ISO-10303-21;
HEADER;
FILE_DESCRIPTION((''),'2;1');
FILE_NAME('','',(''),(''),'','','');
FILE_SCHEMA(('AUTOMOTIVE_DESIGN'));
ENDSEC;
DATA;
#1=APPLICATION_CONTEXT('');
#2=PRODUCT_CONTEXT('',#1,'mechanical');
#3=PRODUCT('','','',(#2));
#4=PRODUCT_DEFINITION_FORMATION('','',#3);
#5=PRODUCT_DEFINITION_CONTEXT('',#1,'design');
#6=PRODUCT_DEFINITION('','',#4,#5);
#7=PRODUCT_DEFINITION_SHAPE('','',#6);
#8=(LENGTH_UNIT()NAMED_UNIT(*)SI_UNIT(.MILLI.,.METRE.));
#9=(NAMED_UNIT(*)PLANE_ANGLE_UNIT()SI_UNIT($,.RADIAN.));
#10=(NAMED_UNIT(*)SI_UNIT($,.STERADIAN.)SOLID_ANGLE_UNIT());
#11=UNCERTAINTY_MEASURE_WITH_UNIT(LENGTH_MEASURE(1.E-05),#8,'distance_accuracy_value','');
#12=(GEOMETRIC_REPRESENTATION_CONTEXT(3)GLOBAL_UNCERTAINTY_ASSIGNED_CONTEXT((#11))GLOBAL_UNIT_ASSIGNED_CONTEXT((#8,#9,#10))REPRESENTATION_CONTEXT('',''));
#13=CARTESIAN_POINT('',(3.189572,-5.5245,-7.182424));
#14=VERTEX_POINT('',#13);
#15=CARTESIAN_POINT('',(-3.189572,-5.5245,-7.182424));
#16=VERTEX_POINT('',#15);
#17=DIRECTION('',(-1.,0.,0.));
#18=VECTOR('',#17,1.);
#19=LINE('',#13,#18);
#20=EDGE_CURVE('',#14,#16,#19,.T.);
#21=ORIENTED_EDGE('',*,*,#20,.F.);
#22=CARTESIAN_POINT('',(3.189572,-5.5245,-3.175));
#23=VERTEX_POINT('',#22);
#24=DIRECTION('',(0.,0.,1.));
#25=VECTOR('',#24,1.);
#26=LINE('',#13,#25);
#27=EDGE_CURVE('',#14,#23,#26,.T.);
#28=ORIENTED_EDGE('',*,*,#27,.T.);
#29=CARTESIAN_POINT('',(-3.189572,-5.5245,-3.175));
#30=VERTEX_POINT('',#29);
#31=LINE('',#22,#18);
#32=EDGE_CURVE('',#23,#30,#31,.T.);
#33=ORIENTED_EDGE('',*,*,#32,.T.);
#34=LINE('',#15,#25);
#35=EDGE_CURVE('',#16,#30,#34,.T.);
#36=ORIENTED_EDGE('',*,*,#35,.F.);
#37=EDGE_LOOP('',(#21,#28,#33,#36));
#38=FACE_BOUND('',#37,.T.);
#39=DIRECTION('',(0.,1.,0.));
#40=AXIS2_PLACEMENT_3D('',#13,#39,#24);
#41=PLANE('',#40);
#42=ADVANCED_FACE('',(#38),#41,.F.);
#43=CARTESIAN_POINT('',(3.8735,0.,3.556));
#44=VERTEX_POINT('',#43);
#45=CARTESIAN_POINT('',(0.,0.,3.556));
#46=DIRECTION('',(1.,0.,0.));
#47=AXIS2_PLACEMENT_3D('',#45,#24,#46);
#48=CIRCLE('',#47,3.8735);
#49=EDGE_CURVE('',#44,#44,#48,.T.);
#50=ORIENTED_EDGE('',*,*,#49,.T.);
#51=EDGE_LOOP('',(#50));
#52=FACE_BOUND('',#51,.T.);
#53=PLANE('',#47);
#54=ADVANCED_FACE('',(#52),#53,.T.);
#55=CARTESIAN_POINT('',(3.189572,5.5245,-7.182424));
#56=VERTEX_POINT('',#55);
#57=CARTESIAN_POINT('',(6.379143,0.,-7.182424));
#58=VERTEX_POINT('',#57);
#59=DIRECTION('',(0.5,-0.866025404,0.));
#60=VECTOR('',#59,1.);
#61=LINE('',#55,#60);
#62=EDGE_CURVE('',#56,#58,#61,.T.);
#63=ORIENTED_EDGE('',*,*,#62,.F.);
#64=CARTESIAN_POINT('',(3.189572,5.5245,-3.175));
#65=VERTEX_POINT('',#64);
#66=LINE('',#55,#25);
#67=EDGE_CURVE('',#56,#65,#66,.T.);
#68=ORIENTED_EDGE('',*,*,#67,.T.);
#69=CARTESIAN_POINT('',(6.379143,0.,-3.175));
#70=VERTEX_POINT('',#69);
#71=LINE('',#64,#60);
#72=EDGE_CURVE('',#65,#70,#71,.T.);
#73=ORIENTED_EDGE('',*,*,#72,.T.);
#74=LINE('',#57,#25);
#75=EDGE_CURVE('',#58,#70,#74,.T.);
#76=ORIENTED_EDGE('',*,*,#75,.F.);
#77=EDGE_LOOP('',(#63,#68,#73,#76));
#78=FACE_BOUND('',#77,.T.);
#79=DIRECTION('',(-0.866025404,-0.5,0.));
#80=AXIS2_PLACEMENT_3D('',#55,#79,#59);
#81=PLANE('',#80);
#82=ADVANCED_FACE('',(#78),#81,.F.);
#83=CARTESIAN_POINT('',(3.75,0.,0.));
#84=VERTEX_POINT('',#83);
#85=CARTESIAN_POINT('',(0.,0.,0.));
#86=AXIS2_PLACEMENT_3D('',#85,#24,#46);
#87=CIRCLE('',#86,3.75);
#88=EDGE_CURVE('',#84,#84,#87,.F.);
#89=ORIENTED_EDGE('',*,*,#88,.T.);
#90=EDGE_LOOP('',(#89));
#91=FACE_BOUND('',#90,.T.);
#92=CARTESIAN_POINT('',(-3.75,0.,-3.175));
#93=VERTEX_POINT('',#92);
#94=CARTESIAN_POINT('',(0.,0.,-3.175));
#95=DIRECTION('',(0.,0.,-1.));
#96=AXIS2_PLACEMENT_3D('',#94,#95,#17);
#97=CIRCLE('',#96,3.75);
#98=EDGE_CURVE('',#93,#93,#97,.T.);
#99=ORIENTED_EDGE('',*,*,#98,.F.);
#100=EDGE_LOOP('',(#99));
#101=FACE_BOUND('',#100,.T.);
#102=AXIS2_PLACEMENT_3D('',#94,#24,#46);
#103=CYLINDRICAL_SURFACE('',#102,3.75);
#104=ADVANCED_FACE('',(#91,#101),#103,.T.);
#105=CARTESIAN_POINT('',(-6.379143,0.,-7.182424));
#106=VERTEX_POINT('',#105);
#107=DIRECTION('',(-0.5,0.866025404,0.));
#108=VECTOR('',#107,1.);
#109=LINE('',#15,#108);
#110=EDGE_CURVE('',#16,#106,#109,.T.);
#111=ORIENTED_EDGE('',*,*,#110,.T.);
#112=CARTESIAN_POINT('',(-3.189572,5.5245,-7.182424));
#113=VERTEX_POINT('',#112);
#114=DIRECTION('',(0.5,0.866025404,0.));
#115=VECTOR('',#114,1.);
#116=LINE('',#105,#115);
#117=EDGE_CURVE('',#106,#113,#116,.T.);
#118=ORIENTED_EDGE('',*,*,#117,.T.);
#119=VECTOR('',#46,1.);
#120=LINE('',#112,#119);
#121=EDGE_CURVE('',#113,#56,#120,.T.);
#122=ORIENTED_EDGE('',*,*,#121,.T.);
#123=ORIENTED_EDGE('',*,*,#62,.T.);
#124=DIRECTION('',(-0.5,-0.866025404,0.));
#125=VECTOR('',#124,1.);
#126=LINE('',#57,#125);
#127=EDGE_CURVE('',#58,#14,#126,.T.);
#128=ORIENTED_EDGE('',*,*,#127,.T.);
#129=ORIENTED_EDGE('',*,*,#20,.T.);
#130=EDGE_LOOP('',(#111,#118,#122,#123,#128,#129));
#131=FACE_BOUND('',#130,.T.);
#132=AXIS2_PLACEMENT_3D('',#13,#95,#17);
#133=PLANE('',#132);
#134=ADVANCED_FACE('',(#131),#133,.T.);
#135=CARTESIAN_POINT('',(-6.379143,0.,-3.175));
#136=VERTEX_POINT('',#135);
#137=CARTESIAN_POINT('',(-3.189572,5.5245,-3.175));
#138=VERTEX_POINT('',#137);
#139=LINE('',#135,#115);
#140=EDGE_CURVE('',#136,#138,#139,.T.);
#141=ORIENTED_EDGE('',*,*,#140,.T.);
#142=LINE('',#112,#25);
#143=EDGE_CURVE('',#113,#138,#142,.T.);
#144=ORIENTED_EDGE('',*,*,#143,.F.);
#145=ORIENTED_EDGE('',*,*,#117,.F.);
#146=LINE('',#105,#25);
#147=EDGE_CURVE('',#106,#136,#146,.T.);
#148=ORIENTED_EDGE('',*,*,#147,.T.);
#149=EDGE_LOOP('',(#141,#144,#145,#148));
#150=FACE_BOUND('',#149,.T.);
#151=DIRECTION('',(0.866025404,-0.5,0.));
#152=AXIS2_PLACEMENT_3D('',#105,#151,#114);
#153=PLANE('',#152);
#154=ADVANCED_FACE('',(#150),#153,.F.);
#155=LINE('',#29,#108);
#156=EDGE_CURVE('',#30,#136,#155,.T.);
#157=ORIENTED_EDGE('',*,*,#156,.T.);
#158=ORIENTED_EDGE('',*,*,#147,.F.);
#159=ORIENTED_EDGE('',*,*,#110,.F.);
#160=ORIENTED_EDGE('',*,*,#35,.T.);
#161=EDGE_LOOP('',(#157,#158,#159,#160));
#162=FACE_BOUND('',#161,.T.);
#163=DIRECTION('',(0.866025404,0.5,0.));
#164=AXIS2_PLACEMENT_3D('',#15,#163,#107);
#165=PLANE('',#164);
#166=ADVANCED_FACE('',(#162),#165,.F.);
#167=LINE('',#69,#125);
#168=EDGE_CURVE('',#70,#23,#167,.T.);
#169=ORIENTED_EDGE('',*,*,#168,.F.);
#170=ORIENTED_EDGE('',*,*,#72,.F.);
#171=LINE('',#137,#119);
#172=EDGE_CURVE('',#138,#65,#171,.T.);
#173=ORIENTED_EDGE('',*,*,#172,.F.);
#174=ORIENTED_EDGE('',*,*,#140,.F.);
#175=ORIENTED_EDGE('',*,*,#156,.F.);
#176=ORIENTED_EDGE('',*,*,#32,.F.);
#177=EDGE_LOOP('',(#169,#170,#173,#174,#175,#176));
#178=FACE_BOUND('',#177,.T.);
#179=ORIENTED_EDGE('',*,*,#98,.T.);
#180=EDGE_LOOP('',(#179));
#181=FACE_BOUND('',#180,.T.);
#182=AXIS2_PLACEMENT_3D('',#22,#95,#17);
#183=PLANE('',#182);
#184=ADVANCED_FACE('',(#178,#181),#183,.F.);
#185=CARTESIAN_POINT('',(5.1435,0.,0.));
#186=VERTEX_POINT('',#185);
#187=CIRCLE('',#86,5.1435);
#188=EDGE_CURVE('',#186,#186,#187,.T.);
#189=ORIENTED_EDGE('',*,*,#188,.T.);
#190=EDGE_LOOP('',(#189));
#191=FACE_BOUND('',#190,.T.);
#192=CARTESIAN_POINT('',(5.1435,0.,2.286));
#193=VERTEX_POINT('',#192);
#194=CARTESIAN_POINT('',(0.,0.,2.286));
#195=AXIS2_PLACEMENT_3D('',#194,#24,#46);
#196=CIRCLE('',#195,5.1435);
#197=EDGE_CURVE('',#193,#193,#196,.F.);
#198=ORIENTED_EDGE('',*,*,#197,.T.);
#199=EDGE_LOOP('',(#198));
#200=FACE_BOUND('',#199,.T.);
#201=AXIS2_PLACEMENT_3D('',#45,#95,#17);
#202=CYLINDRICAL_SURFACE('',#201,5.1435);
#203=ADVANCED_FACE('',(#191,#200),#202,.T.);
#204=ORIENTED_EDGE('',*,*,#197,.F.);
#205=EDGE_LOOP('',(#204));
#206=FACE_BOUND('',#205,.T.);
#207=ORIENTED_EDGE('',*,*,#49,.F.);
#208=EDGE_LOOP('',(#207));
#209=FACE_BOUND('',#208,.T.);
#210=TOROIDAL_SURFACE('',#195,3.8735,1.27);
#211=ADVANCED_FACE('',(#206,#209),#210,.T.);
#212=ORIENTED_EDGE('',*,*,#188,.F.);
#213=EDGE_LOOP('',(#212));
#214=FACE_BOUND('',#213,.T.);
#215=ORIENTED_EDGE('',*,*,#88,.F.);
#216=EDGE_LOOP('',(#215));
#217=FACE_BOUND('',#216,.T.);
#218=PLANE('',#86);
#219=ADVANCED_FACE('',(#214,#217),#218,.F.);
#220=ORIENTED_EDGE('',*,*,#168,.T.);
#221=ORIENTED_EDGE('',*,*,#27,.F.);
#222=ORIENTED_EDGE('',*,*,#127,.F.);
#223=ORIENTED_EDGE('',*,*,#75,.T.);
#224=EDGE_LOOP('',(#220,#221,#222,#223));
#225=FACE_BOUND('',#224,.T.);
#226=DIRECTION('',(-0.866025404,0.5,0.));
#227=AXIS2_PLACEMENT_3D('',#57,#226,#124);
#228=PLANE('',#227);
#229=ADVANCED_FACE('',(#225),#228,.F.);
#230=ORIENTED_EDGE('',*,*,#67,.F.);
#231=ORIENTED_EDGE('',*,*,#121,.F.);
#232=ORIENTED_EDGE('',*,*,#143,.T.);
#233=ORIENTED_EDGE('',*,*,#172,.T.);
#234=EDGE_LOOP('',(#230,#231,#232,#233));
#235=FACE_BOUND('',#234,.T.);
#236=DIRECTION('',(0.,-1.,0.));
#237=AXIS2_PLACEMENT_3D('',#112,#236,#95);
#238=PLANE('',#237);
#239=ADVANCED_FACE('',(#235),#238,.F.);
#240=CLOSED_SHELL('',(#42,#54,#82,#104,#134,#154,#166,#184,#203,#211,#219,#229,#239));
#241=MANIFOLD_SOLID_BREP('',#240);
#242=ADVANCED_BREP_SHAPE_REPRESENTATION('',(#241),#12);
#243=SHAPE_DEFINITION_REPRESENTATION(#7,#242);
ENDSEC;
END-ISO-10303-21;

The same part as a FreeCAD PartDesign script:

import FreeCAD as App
import Part
import Sketcher
Q = App.Units.Quantity


def edges_at(feature, points):
    """Names of the edges that pass closest to the given points."""
    edges = feature.Shape.Edges
    near = lambda p: min(range(len(edges)), key=lambda i: edges[i].distToShape(Part.Vertex(*p))[0])
    return sorted({f"Edge{near(p) + 1}" for p in points})


def add_polygon(sketch, points):
    """Adds a closed chain of lines whose ends are joined by coincident constraints."""
    first, n = sketch.GeometryCount, len(points)
    for a, b in zip(points, points[1:] + points[:1]):
        sketch.addGeometry(Part.LineSegment(App.Vector(*a, 0), App.Vector(*b, 0)), False)
    for i in range(n):
        sketch.addConstraint(Sketcher.Constraint("Coincident", first + i, 2, first + (i + 1) % n, 1))

doc = App.newDocument("Part")
params = doc.addObject("Spreadsheet::Sheet", "Params")
for row, (alias, value) in enumerate([
    ("sketch1_diameter", "0.405 in"),
    ("pad1_length", "0.14 in"),
    ("pad2_length", "0.125 in"),
    ("pad3_length", "4.007424 mm"),
    ("fillet_radius", "0.05 in"),
], start=1):
    params.set(f"A{row}", alias)
    params.set(f"B{row}", "=" + value)
    params.setAlias(f"B{row}", alias)

body = doc.addObject("PartDesign::Body", "Body")

# Sketch on XY plane
sketch1 = body.newObject("Sketcher::SketchObject", "Sketch")
sketch1.AttachmentSupport = (doc.getObject("XY_Plane"), [""])
sketch1.MapMode = "FlatFace"
sketch1.addGeometry(Part.Circle(App.Vector(0, 0, 0), App.Vector(0, 0, 1), 5.1435), False)
sketch1.addConstraint(Sketcher.Constraint("Coincident", 0, 3, -1, 1))
sketch1.addConstraint(Sketcher.Constraint("Diameter", 0, Q("0.405 in")))
sketch1.setExpression("Constraints[1]", "Params.sketch1_diameter")
pad1 = body.newObject("PartDesign::Pad", "Pad")
pad1.Profile = sketch1
pad1.setExpression("Length", "Params.pad1_length")

# Sketch on XY plane
sketch2 = body.newObject("Sketcher::SketchObject", "Sketch001")
sketch2.AttachmentSupport = (doc.getObject("XY_Plane"), [""])
sketch2.MapMode = "FlatFace"
sketch2.addGeometry(Part.Circle(App.Vector(0, 0, 0), App.Vector(0, 0, 1), 3.75), False)
sketch2.addConstraint(Sketcher.Constraint("Coincident", 0, 3, -1, 1))
sketch2.addConstraint(Sketcher.Constraint("Diameter", 0, Q("7.5 mm")))
pad2 = body.newObject("PartDesign::Pad", "Pad001")
pad2.Profile = sketch2
pad2.setExpression("Length", "Params.pad2_length")
pad2.Reversed = True

# Sketch on XY plane
sketch3 = body.newObject("Sketcher::SketchObject", "Sketch002")
sketch3.AttachmentSupport = (doc.getObject("XY_Plane"), [""])
sketch3.MapMode = "FlatFace"
sketch3.AttachmentOffset = App.Placement(App.Vector(0, 0, -0.125 * 25.4), App.Rotation())
add_polygon(sketch3, [(3.189572, -5.5245), (-3.189572, -5.5245), (-6.379143, 0), (-3.189572, 5.5245), (3.189572, 5.5245), (6.379143, 0)])  # lines 0-5
sketch3.addConstraint(Sketcher.Constraint("Horizontal", 0))
sketch3.addConstraint(Sketcher.Constraint("Horizontal", 3))
sketch3.addConstraint(Sketcher.Constraint("Symmetric", 0, 2, 3, 2, -1, 1))
sketch3.addConstraint(Sketcher.Constraint("Symmetric", 1, 2, 4, 2, -1, 1))
sketch3.addConstraint(Sketcher.Constraint("PointOnObject", 1, 2, -1))
sketch3.addConstraint(Sketcher.Constraint("Parallel", 2, 5))
sketch3.addConstraint(Sketcher.Constraint("Vertical", 0, 2, 2, 2))
sketch3.addConstraint(Sketcher.Constraint("Angle", 1, Q("120 deg")))
sketch3.addConstraint(Sketcher.Constraint("DistanceY", 0, 2, 2, 2, Q("0.435 in")))
sketch3.addConstraint(Sketcher.Constraint("DistanceX", 0, 2, 0, 1, Q("6.379143 mm")))
pad3 = body.newObject("PartDesign::Pad", "Pad002")
pad3.Profile = sketch3
pad3.setExpression("Length", "Params.pad3_length")
pad3.Reversed = True
doc.recompute()

fillet = body.newObject("PartDesign::Fillet", "Fillet")
fillet.Base = (pad3, edges_at(pad3, [(-5.144, 0, 3.556)]))
fillet.setExpression("Radius", "Params.fillet_radius")

doc.recompute()
